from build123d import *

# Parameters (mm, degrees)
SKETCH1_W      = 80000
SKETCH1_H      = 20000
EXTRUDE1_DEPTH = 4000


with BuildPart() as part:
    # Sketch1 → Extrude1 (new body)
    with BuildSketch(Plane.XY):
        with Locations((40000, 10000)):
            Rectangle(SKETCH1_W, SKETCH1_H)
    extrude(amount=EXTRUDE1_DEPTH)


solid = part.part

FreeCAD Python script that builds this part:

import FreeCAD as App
import Part
import Sketcher
from FreeCAD import Vector

doc = App.newDocument("Part")
body = doc.addObject("PartDesign::Body", "Body")

sketch1 = body.newObject("Sketcher::SketchObject", "Sketch")
sketch1.AttachmentSupport = (doc.getObject("XY_Plane"), [""])
sketch1.MapMode = "FlatFace"
sketch1.addGeometry(Part.LineSegment(Vector(0, 20000, 0), Vector(0, 0, 0)), False)
sketch1.addGeometry(Part.LineSegment(Vector(0, 0, 0), Vector(80000, 0, 0)), False)
sketch1.addGeometry(Part.LineSegment(Vector(80000, 0, 0), Vector(80000, 20000, 0)), False)
sketch1.addGeometry(Part.LineSegment(Vector(80000, 20000, 0), Vector(0, 20000, 0)), False)
sketch1.addConstraint(Sketcher.Constraint("Coincident", 0, 2, 1, 1))
sketch1.addConstraint(Sketcher.Constraint("Coincident", 1, 2, 2, 1))
sketch1.addConstraint(Sketcher.Constraint("Coincident", 2, 2, 3, 1))
sketch1.addConstraint(Sketcher.Constraint("Coincident", 3, 2, 0, 1))
sketch1.addConstraint(Sketcher.Constraint("Vertical", 0))
sketch1.addConstraint(Sketcher.Constraint("Horizontal", 1))
sketch1.addConstraint(Sketcher.Constraint("Vertical", 2))
sketch1.addConstraint(Sketcher.Constraint("Horizontal", 3))
sketch1.addConstraint(Sketcher.Constraint("Coincident", 0, 2, -1, 1))
sketch1.addConstraint(Sketcher.Constraint("DistanceX", 1, 1, 1, 2, 80000.0))
sketch1.addConstraint(Sketcher.Constraint("DistanceY", 0, 2, 0, 1, 20000.0))
pad1 = body.newObject("PartDesign::Pad", "Pad")
pad1.Profile = sketch1
pad1.Length = 4000

doc.recompute()
